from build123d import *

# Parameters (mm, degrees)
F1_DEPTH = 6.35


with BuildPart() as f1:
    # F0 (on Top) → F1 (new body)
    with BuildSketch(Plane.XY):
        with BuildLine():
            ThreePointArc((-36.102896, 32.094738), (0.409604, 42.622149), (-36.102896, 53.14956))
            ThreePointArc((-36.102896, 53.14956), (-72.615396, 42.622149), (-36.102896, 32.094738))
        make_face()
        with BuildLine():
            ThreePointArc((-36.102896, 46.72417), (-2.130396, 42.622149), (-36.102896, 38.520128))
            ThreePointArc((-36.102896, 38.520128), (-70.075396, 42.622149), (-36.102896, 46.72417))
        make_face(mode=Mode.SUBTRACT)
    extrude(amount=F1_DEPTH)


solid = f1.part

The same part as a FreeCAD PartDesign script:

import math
import FreeCAD as App
import Part
import Sketcher

V = App.Vector
Q = App.Units.Quantity

doc = App.newDocument("Part")
body = doc.addObject("PartDesign::Body", "Body")

sketch1 = doc.addObject("Sketcher::SketchObject", "Sketch")
body.addObject(sketch1)
sketch1.AttachmentSupport = (doc.XY_Plane, [""])
sketch1.MapMode = "FlatFace"
sketch1.addGeometry([
    Part.ArcOfCircle(Part.Circle(V(-19.364296, 42.622149, 0), V(0, 0, 1), 19.7739), math.radians(-147.832973), math.radians(147.832973)),
    Part.ArcOfCircle(Part.Circle(V(-52.841496, 42.622149, 0), V(0, 0, 1), 19.7739), math.radians(32.167027), math.radians(327.832973)),
    Part.ArcOfCircle(Part.Circle(V(-52.841496, 42.622149, 0), V(0, 0, 1), 17.2339), math.radians(13.769736), math.radians(346.230264)),
    Part.ArcOfCircle(Part.Circle(V(-19.364296, 42.622149, 0), V(0, 0, 1), 17.2339), math.radians(-166.230264), math.radians(166.230264)),
], False)
sketch1.addConstraint([
    Sketcher.Constraint("Coincident", 0, 1, 1, 2),
    Sketcher.Constraint("Coincident", 1, 1, 0, 2),
    Sketcher.Constraint("Coincident", 2, 1, 3, 2),
    Sketcher.Constraint("Coincident", 3, 1, 2, 2),
    Sketcher.Constraint("Coincident", 2, 3, 1, 3),
    Sketcher.Constraint("Coincident", 3, 3, 0, 3),
    Sketcher.Constraint("Equal", 0, 1),
    Sketcher.Constraint("Equal", 2, 3),
    Sketcher.Constraint("Horizontal", 0, 3, 1, 3),
    Sketcher.Constraint("Radius", 0, Q("0.7785 in")),
    Sketcher.Constraint("Radius", 2, Q("0.6785 in")),
    Sketcher.Constraint("DistanceX", 1, 3, 0, 3, Q("1.318 in")),
    Sketcher.Constraint("DistanceY", -1, 1, 0, 3, 42.622149),
    Sketcher.Constraint("DistanceX", 0, 3, -1, 1, 19.364296),
])
pad1 = doc.addObject("PartDesign::Pad", "Pad")
body.addObject(pad1)
pad1.Profile = sketch1
pad1.Length = Q("0.25 in")

doc.recompute()
